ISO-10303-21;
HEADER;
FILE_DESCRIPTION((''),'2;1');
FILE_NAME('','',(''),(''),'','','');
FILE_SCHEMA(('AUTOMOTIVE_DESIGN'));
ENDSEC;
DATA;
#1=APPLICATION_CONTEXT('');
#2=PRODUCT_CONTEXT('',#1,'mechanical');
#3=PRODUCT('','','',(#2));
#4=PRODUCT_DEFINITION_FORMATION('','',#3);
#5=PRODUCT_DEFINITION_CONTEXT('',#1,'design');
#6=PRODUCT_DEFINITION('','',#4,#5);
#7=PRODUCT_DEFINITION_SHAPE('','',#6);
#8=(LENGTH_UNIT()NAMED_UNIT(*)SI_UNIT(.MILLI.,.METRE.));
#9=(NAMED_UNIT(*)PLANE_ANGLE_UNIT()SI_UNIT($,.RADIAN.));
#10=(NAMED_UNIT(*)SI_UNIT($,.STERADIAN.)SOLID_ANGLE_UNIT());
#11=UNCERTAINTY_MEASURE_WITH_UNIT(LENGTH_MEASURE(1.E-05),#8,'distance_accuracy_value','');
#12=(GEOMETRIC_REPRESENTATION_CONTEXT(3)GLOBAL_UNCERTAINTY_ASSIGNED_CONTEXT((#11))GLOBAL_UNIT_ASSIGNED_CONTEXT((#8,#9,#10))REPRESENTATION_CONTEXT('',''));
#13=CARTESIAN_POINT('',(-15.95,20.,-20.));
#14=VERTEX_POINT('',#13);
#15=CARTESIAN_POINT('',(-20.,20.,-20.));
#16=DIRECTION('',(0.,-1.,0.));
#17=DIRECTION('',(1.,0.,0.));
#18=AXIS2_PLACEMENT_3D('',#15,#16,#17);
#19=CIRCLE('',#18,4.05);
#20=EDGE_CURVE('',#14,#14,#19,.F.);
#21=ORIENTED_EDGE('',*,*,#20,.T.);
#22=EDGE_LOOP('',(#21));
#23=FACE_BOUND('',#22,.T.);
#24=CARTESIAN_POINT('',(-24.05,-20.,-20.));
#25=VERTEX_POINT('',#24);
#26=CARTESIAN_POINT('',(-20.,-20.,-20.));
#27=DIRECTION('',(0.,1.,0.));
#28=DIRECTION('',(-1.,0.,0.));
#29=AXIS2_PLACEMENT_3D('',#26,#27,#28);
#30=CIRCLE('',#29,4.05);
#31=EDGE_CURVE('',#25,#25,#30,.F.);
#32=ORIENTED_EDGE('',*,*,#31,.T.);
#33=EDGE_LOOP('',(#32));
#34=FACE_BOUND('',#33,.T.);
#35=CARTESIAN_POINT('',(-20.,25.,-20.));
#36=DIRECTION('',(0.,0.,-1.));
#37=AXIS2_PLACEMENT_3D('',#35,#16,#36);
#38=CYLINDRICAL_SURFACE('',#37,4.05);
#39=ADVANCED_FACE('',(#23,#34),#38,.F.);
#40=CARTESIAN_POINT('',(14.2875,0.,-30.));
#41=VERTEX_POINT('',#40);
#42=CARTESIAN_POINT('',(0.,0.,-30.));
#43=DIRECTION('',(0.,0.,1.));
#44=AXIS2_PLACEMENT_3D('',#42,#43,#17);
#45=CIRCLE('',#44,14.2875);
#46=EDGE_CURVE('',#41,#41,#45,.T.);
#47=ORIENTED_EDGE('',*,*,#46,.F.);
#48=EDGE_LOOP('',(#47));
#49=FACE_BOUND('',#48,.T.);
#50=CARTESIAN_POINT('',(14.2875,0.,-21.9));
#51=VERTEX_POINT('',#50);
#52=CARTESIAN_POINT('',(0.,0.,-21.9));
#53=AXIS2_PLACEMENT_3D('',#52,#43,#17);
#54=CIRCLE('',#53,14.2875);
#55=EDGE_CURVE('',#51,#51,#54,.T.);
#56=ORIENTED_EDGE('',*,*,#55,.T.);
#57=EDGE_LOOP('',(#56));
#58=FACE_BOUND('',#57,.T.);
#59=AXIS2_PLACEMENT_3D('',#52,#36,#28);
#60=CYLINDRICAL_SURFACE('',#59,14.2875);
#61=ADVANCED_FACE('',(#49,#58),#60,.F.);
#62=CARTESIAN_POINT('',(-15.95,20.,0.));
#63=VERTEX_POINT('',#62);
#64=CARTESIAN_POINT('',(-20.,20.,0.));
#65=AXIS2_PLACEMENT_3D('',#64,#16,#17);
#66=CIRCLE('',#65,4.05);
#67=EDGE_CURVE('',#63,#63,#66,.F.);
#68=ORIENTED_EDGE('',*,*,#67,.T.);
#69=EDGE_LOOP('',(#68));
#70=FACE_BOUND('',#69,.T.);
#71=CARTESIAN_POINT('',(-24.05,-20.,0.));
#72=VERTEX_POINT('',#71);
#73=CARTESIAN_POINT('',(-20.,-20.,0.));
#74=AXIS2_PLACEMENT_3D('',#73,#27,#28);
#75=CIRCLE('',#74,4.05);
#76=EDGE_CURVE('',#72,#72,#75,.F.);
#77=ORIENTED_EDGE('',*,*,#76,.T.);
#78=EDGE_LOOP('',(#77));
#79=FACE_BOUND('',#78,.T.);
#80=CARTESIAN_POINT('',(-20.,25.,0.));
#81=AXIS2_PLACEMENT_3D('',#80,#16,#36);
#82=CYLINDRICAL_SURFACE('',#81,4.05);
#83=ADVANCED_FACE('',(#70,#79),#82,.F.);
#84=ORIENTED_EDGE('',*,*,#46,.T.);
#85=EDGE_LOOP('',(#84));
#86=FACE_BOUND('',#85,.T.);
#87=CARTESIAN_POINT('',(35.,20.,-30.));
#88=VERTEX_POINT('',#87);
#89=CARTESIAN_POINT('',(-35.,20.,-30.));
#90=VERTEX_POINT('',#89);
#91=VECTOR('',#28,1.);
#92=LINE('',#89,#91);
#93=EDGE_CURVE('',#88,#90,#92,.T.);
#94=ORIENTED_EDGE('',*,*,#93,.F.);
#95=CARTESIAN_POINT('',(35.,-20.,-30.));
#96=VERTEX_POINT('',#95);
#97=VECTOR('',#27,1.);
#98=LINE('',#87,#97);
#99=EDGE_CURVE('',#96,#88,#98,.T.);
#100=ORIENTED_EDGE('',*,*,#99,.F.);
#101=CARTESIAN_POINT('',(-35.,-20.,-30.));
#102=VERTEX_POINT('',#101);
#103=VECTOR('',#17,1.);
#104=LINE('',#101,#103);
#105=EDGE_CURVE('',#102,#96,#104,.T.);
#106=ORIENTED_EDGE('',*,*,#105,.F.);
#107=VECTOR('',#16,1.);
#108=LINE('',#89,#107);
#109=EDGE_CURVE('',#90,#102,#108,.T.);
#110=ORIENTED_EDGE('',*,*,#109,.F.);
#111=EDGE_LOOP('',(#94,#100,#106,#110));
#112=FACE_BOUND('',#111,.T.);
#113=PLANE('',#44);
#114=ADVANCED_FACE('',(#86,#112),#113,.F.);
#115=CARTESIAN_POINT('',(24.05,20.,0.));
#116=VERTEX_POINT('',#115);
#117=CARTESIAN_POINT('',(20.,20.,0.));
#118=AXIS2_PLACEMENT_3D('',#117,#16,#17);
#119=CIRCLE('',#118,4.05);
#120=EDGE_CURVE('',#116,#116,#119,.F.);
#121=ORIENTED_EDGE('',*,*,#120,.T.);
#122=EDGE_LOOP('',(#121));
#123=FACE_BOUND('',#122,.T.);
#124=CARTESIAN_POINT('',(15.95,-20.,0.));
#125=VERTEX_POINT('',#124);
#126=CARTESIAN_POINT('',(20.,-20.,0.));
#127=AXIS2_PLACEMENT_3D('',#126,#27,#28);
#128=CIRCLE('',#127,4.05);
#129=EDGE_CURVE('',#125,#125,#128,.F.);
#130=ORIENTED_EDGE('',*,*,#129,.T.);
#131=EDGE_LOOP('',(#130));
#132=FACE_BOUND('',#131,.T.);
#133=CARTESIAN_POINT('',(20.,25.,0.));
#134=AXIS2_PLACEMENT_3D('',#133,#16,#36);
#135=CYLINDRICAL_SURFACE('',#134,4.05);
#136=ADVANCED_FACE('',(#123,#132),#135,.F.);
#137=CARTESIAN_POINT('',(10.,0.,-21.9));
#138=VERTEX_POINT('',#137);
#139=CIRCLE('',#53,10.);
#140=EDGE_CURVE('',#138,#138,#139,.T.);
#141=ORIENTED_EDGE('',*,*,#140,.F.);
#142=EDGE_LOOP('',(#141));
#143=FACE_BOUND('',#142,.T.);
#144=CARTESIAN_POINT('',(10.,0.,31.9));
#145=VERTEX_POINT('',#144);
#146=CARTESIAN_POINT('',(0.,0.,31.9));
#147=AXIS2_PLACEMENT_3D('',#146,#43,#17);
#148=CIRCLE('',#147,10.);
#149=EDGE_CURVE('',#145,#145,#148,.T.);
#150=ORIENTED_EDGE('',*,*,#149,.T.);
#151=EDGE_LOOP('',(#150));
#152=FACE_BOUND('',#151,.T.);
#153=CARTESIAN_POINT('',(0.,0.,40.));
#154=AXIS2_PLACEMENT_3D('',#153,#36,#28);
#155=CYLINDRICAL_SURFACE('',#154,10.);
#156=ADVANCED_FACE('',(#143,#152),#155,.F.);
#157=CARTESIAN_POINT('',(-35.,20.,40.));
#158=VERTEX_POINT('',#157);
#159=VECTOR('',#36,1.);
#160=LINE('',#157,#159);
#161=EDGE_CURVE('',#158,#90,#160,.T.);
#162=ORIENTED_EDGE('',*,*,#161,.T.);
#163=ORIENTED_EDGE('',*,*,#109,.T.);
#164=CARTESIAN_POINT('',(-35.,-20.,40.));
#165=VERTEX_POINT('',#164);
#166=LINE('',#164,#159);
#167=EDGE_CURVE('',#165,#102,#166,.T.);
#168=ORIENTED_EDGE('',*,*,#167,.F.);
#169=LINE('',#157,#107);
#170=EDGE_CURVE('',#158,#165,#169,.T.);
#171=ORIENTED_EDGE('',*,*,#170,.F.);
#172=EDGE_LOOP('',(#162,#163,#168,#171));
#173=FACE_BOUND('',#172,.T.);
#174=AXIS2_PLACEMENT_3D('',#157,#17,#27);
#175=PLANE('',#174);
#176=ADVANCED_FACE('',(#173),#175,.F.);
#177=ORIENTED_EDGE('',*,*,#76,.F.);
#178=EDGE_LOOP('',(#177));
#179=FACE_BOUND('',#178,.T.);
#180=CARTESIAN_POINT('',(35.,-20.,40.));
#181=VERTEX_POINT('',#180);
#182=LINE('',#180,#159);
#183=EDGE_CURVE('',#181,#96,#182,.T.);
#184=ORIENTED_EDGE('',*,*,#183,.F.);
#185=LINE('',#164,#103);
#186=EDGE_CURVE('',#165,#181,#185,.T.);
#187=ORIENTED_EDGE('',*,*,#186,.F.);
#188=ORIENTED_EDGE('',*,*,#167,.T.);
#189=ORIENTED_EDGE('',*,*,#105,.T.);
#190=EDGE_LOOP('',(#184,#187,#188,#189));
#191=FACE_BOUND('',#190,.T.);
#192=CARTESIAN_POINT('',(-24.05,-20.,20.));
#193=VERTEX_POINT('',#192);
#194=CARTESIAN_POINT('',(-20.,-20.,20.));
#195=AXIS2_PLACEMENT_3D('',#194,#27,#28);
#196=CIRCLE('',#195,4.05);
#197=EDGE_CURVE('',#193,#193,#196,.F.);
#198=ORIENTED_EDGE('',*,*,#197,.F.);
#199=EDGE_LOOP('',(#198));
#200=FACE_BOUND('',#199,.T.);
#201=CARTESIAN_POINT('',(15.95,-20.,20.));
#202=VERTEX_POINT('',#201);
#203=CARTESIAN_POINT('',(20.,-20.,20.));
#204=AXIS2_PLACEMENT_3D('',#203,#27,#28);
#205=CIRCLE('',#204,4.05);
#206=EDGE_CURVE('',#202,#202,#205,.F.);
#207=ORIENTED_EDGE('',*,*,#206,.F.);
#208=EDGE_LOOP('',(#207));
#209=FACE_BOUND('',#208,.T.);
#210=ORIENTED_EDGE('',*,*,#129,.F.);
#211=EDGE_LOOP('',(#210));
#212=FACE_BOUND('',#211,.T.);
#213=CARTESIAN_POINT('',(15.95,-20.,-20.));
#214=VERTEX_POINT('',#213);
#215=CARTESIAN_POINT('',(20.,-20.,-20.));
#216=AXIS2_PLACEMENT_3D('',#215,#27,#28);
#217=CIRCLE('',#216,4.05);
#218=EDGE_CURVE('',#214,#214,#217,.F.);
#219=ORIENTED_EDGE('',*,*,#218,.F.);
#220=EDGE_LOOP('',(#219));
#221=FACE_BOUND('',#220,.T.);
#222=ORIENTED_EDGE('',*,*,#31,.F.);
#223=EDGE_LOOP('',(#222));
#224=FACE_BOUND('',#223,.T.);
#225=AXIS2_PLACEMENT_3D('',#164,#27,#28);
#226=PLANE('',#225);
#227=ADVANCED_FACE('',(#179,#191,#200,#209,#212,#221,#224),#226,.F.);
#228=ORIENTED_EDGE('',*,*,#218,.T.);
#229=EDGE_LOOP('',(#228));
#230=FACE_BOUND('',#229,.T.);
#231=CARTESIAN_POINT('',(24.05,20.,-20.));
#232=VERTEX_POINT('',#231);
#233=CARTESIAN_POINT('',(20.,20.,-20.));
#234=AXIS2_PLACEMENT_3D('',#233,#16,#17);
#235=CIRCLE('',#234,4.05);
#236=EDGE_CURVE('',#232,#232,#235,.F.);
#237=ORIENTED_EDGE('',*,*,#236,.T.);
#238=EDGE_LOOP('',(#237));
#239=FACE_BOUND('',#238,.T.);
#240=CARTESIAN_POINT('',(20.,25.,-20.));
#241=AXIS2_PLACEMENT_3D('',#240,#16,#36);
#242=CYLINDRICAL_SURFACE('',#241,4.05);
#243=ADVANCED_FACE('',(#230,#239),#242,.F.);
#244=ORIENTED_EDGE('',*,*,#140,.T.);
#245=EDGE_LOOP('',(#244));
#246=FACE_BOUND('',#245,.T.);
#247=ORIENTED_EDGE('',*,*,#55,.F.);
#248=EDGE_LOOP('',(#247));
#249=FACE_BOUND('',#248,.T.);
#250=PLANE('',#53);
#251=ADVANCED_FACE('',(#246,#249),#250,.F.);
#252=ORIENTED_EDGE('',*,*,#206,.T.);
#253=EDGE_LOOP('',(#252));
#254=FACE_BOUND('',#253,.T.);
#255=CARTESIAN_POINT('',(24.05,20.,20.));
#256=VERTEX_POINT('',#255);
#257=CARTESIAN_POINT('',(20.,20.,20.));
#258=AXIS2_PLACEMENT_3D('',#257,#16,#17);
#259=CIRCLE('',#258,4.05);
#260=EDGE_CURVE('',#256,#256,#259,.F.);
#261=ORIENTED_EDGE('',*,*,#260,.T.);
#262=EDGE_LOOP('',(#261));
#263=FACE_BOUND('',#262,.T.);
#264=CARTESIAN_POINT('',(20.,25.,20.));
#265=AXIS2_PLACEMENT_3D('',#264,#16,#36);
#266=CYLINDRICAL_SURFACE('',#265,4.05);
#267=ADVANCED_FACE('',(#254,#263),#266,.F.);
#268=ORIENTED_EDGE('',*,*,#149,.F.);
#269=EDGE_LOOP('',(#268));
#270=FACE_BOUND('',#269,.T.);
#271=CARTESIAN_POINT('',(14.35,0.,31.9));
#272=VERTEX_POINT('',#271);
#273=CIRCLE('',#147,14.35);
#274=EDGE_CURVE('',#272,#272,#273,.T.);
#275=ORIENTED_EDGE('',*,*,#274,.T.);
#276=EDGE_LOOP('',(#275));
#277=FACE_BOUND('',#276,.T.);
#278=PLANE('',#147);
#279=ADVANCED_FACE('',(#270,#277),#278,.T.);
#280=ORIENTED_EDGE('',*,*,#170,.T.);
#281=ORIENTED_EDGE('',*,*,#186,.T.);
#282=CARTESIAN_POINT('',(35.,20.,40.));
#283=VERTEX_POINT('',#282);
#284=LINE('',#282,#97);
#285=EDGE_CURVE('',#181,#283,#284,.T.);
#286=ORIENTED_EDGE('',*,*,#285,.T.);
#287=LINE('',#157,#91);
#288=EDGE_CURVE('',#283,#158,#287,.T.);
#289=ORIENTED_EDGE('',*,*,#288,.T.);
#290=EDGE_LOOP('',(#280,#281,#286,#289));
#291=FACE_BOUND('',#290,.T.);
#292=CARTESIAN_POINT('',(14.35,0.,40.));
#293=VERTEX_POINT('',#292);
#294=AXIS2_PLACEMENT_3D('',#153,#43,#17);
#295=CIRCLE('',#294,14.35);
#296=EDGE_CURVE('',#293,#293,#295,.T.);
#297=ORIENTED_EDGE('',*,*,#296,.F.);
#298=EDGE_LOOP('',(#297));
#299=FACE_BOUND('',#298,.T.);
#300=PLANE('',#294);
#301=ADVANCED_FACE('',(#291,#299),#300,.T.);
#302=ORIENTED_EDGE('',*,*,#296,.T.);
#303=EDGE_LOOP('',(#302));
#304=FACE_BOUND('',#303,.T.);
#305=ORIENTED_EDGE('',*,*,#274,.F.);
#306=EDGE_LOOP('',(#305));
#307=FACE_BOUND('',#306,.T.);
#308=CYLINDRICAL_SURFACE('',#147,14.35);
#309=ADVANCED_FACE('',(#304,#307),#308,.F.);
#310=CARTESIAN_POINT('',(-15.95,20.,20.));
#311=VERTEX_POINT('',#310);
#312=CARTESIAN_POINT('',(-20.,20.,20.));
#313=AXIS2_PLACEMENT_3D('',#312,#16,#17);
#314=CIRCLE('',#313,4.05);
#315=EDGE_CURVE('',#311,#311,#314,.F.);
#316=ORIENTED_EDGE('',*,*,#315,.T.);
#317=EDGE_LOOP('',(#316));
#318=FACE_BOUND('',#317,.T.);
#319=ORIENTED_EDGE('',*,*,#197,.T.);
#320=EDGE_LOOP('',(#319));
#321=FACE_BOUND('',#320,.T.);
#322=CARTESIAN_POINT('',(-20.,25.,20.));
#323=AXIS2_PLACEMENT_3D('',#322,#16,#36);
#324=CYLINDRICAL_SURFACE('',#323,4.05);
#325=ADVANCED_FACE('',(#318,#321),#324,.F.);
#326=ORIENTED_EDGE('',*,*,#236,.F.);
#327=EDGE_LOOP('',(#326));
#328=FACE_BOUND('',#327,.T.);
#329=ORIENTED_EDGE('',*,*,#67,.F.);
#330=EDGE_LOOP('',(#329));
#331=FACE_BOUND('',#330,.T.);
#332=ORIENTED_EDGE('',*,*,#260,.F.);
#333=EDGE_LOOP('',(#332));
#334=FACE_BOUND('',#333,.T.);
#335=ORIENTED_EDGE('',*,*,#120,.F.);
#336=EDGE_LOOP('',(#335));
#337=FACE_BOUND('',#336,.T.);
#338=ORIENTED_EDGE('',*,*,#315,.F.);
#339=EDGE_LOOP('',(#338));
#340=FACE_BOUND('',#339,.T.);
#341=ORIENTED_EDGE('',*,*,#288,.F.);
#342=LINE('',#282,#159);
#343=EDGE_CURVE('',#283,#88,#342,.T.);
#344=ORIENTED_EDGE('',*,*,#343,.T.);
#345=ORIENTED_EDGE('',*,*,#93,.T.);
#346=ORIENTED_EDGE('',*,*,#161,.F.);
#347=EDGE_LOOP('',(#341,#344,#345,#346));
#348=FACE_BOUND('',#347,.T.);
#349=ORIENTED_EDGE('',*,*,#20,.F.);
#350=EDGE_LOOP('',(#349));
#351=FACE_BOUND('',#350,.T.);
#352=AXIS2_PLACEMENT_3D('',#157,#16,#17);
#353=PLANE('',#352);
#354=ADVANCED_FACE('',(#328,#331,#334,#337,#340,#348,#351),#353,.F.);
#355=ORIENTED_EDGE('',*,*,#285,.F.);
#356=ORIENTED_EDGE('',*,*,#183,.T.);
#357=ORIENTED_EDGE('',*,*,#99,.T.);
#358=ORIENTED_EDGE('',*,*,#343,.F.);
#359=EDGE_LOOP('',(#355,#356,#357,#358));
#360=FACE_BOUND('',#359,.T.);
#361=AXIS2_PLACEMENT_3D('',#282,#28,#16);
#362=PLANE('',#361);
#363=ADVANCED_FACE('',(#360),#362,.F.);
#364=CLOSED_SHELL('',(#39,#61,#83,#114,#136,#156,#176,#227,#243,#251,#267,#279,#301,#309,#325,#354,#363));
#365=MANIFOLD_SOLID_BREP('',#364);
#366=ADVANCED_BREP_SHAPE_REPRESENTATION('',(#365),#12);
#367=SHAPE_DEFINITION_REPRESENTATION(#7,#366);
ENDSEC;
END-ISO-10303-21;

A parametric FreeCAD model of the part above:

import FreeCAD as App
import Part
import Sketcher
from FreeCAD import Vector
Q = App.Units.Quantity

doc = App.newDocument("Part")
params = doc.addObject("Spreadsheet::Sheet", "Params")
for row, (alias, value) in enumerate([
    ("sketch1_diameter", "20 mm"),
    ("sketch1_width", "70 mm"),
    ("sketch1_height", "40 mm"),
    ("pad1_length", "40 mm"),
    ("pad1_length2", "30 mm"),
    ("sketch2_diameter", "8.1 mm"),
    ("sketch3_diameter", "28.7 mm"),
    ("pocket2_length", "8.1 mm"),
    ("pocket3_length", "8.1 mm"),
], start=1):
    params.set(f"A{row}", alias)
    params.set(f"B{row}", "=" + value)
    params.setAlias(f"B{row}", alias)

body = doc.addObject("PartDesign::Body", "Body")

# Sketch on XY plane
sketch1 = doc.addObject("Sketcher::SketchObject", "Sketch")
body.addObject(sketch1)
sketch1.AttachmentSupport = (doc.XY_Plane, [""])
sketch1.MapMode = "FlatFace"
sketch1.addGeometry([
    Part.LineSegment(Vector(-35, 20, 0), Vector(-35, -20, 0)),  # 0
    Part.LineSegment(Vector(-35, -20, 0), Vector(35, -20, 0)),  # 1
    Part.LineSegment(Vector(35, -20, 0), Vector(35, 20, 0)),  # 2
    Part.LineSegment(Vector(35, 20, 0), Vector(-35, 20, 0)),  # 3
    Part.Circle(Vector(0, 0, 0), Vector(0, 0, 1), 10),  # 4
], False)
sketch1.addConstraint([
    Sketcher.Constraint("Coincident", 0, 2, 1, 1),
    Sketcher.Constraint("Coincident", 1, 2, 2, 1),
    Sketcher.Constraint("Coincident", 2, 2, 3, 1),
    Sketcher.Constraint("Coincident", 3, 2, 0, 1),
    Sketcher.Constraint("Vertical", 0),
    Sketcher.Constraint("Horizontal", 1),
    Sketcher.Constraint("Vertical", 2),
    Sketcher.Constraint("Horizontal", 3),
    Sketcher.Constraint("Coincident", 4, 3, -1, 1),
    Sketcher.Constraint("Symmetric", 0, 2, 2, 2, -1, 1),
    Sketcher.Constraint("Diameter", 4, Q("20 mm")),
    Sketcher.Constraint("DistanceX", 1, 1, 1, 2, Q("70 mm")),
    Sketcher.Constraint("DistanceY", 0, 2, 0, 1, Q("40 mm")),
])
sketch1.setExpression("Constraints[10]", "Params.sketch1_diameter")
sketch1.setExpression("Constraints[11]", "Params.sketch1_width")
sketch1.setExpression("Constraints[12]", "Params.sketch1_height")
pad1 = doc.addObject("PartDesign::Pad", "Pad")
body.addObject(pad1)
pad1.Profile = sketch1
pad1.Type = "TwoLengths"
pad1.setExpression("Length", "Params.pad1_length")
pad1.setExpression("Length2", "Params.pad1_length2")

# Sketch on XZ plane
sketch2 = doc.addObject("Sketcher::SketchObject", "Sketch001")
body.addObject(sketch2)
sketch2.AttachmentSupport = (doc.XZ_Plane, [""])
sketch2.MapMode = "FlatFace"
sketch2.addGeometry([
    Part.Circle(Vector(-20, -20, 0), Vector(0, 0, 1), 4.05),  # 0
    Part.Circle(Vector(20, -20, 0), Vector(0, 0, 1), 4.05),  # 1
    Part.Circle(Vector(-20, 20, 0), Vector(0, 0, 1), 4.05),  # 2
    Part.Circle(Vector(20, 20, 0), Vector(0, 0, 1), 4.05),  # 3
    Part.Circle(Vector(-20, 0, 0), Vector(0, 0, 1), 4.05),  # 4
    Part.Circle(Vector(20, 0, 0), Vector(0, 0, 1), 4.05),  # 5
], False)
sketch2.addConstraint([
    Sketcher.Constraint("Equal", 0, 1),
    Sketcher.Constraint("Equal", 1, 2),
    Sketcher.Constraint("Equal", 2, 3),
    Sketcher.Constraint("Equal", 3, 4),
    Sketcher.Constraint("Equal", 4, 5),
    Sketcher.Constraint("Symmetric", 1, 3, 2, 3, -1, 1),
    Sketcher.Constraint("Symmetric", 0, 3, 3, 3, -1, 1),
    Sketcher.Constraint("Symmetric", 4, 3, 5, 3, -1, 1),
    Sketcher.Constraint("Symmetric", 0, 3, 1, 3, -2),
    Sketcher.Constraint("PointOnObject", 4, 3, -1),
    Sketcher.Constraint("Vertical", 2, 3, 4, 3),
    Sketcher.Constraint("Diameter", 0, Q("8.1 mm")),
    Sketcher.Constraint("DistanceX", 0, 3, -1, 1, Q("20 mm")),
    Sketcher.Constraint("DistanceY", 0, 3, -1, 1, Q("20 mm")),
])
sketch2.setExpression("Constraints[11]", "Params.sketch2_diameter")
pocket1 = doc.addObject("PartDesign::Pocket", "Pocket")
body.addObject(pocket1)
pocket1.Profile = sketch2
pocket1.Type = "ThroughAll"
pocket1.Midplane = True

# Sketch on XY plane
sketch3 = doc.addObject("Sketcher::SketchObject", "Sketch002")
body.addObject(sketch3)
sketch3.AttachmentSupport = (doc.XY_Plane, [""])
sketch3.MapMode = "FlatFace"
sketch3.AttachmentOffset = App.Placement(Vector(0, 0, 40), App.Rotation())
sketch3.addGeometry(Part.Circle(Vector(0, 0, 0), Vector(0, 0, 1), 14.35), False)
sketch3.addConstraint([
    Sketcher.Constraint("Coincident", 0, 3, -1, 1),
    Sketcher.Constraint("Diameter", 0, Q("28.7 mm")),
])
sketch3.setExpression("Constraints[1]", "Params.sketch3_diameter")
pocket2 = doc.addObject("PartDesign::Pocket", "Pocket001")
body.addObject(pocket2)
pocket2.Profile = sketch3
pocket2.setExpression("Length", "Params.pocket2_length")

# Sketch on XY plane
sketch4 = doc.addObject("Sketcher::SketchObject", "Sketch003")
body.addObject(sketch4)
sketch4.AttachmentSupport = (doc.XY_Plane, [""])
sketch4.MapMode = "FlatFace"
sketch4.AttachmentOffset = App.Placement(Vector(0, 0, -30), App.Rotation())
sketch4.addGeometry(Part.Circle(Vector(0, 0, 0), Vector(0, 0, 1), 14.2875), False)
sketch4.addConstraint([
    Sketcher.Constraint("Coincident", 0, 3, -1, 1),
    Sketcher.Constraint("Diameter", 0, Q("28.575 mm")),
])
pocket3 = doc.addObject("PartDesign::Pocket", "Pocket002")
body.addObject(pocket3)
pocket3.Profile = sketch4
pocket3.setExpression("Length", "Params.pocket3_length")
pocket3.Reversed = True

doc.recompute()
